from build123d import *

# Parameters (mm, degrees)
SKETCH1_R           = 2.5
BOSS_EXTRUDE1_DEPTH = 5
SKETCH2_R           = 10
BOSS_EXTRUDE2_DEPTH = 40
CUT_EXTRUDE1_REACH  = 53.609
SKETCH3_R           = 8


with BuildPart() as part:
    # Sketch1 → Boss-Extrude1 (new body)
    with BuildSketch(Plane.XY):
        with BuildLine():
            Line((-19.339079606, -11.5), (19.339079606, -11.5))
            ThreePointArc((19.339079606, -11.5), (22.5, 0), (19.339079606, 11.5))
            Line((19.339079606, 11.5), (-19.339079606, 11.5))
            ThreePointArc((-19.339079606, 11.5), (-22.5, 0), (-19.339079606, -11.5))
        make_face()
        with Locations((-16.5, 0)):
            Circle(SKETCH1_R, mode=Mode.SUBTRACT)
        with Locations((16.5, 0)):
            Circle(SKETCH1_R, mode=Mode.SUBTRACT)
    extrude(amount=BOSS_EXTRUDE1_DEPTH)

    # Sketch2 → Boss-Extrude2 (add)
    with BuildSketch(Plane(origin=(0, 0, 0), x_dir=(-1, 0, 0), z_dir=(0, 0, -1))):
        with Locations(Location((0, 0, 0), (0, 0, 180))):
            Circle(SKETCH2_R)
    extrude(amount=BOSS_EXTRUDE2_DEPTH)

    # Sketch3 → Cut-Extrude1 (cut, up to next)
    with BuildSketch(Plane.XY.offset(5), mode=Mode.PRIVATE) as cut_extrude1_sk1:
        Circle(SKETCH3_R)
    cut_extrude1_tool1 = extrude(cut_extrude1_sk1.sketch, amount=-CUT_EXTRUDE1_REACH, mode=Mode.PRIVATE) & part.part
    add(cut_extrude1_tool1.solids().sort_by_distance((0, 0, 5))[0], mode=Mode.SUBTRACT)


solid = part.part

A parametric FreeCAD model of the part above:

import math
import FreeCAD as App
import Part
import Sketcher

V = App.Vector
Q = App.Units.Quantity

doc = App.newDocument("Part")
body = doc.addObject("PartDesign::Body", "Body")

# Sketch on XY plane
sketch1 = body.newObject("Sketcher::SketchObject", "Sketch")
sketch1.AttachmentSupport = (doc.getObject("XY_Plane"), [""])
sketch1.MapMode = "FlatFace"
sketch1.addGeometry([
    Part.LineSegment(V(-19.3, -11.5, 0), V(19.3, -11.5, 0)),  # 0
    Part.ArcOfCircle(Part.Circle(V(0, 0, 0), V(0, 0, 1), 22.5), math.radians(-31), math.radians(31)),  # 1
    Part.LineSegment(V(19.3, 11.5, 0), V(-19.3, 11.5, 0)),  # 2
    Part.ArcOfCircle(Part.Circle(V(0, 0, 0), V(0, 0, 1), 22.5), math.radians(149), math.radians(211)),  # 3
    Part.Circle(V(-16.5, 0, 0), V(0, 0, 1), 2.5),  # 4
    Part.Circle(V(16.5, 0, 0), V(0, 0, 1), 2.5),  # 5
], False)
sketch1.addConstraint([
    Sketcher.Constraint("Coincident", 0, 2, 1, 1),
    Sketcher.Constraint("Coincident", 1, 2, 2, 1),
    Sketcher.Constraint("Coincident", 2, 2, 3, 1),
    Sketcher.Constraint("Coincident", 3, 2, 0, 1),
    Sketcher.Constraint("Horizontal", 0),
    Sketcher.Constraint("Horizontal", 2),
    Sketcher.Constraint("Coincident", 1, 3, -1, 1),
    Sketcher.Constraint("Coincident", 3, 3, -1, 1),
    Sketcher.Constraint("Equal", 1, 3),
    Sketcher.Constraint("Equal", 4, 5),
    Sketcher.Constraint("Symmetric", 4, 3, 5, 3, -1, 1),
    Sketcher.Constraint("PointOnObject", 4, 3, -1),
    Sketcher.Constraint("Vertical", 0, 2, 1, 2),
    Sketcher.Constraint("Diameter", 4, Q("5 mm")),
    Sketcher.Constraint("Radius", 1, Q("22.5 mm")),
    Sketcher.Constraint("DistanceX", 4, 3, 5, 3, Q("33 mm")),
    Sketcher.Constraint("DistanceY", 0, 2, 1, 2, Q("23 mm")),
])
pad1 = body.newObject("PartDesign::Pad", "Pad")
pad1.Profile = sketch1
pad1.Length = 5

# Sketch on XY plane
sketch2 = body.newObject("Sketcher::SketchObject", "Sketch001")
sketch2.AttachmentSupport = (doc.getObject("XY_Plane"), [""])
sketch2.MapMode = "FlatFace"
sketch2.addGeometry(Part.Circle(V(0, 0, 0), V(0, 0, 1), 10), False)
sketch2.addConstraint([
    Sketcher.Constraint("Coincident", 0, 3, -1, 1),
    Sketcher.Constraint("Diameter", 0, Q("20 mm")),
])
pad2 = body.newObject("PartDesign::Pad", "Pad001")
pad2.Profile = sketch2
pad2.Length = 40
pad2.Reversed = True

# Sketch on XY plane
sketch3 = body.newObject("Sketcher::SketchObject", "Sketch002")
sketch3.AttachmentSupport = (doc.getObject("XY_Plane"), [""])
sketch3.MapMode = "FlatFace"
sketch3.AttachmentOffset = App.Placement(V(0, 0, 5), App.Rotation())
sketch3.addGeometry(Part.Circle(V(0, 0, 0), V(0, 0, 1), 8), False)
sketch3.addConstraint([
    Sketcher.Constraint("Coincident", 0, 3, -1, 1),
    Sketcher.Constraint("Diameter", 0, Q("16 mm")),
])
pocket1 = body.newObject("PartDesign::Pocket", "Pocket")
pocket1.Profile = sketch3
pocket1.Type = "UpToFirst"

doc.recompute()
